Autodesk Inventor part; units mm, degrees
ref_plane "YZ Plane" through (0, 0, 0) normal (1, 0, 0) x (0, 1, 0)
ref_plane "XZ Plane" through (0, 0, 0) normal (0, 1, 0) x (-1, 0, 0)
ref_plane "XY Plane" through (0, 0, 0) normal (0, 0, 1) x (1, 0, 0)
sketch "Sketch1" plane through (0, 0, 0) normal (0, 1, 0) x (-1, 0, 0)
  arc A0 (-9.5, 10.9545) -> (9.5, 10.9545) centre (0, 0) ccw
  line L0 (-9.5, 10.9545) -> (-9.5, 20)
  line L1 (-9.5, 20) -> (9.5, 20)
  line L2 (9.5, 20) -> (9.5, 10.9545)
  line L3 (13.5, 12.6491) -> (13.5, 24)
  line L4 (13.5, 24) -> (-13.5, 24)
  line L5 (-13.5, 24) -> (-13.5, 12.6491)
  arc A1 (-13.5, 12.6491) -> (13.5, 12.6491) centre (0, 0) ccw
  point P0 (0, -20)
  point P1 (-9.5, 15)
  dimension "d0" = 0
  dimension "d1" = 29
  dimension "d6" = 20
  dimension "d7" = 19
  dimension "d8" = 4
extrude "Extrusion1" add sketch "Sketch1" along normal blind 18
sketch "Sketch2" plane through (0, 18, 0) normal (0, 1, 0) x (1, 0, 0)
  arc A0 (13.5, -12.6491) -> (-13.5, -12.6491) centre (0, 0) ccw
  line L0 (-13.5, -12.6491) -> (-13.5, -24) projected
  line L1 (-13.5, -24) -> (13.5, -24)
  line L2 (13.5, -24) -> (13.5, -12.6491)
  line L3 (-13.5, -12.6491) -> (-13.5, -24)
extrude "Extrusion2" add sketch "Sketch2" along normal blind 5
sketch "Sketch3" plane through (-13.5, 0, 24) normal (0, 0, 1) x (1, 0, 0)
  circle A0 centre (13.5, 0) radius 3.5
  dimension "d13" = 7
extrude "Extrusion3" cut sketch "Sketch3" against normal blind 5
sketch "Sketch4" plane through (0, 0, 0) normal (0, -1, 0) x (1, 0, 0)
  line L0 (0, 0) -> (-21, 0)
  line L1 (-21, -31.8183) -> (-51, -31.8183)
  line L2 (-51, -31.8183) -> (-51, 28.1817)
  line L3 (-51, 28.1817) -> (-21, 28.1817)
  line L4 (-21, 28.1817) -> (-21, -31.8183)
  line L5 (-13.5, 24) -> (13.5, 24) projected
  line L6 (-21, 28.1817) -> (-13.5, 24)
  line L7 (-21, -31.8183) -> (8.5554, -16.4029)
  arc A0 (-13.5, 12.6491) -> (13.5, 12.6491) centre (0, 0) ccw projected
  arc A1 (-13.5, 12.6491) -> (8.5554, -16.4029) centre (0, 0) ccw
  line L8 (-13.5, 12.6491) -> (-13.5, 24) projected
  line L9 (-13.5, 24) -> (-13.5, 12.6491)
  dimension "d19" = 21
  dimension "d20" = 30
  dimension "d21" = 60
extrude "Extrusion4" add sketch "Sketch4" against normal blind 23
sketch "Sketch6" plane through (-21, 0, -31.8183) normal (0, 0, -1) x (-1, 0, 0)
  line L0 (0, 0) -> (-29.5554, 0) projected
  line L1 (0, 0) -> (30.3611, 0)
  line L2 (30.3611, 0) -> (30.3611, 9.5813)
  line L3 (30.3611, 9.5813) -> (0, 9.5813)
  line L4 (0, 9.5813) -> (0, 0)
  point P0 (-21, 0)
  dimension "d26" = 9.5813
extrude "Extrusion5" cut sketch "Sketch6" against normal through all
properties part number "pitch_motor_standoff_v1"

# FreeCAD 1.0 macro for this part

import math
import FreeCAD as App
import Part
import Sketcher

V = App.Vector


def add_polygon(sketch, points):
    """Adds a closed chain of lines whose ends are joined by coincident constraints."""
    first, n = sketch.GeometryCount, len(points)
    for a, b in zip(points, points[1:] + points[:1]):
        sketch.addGeometry(Part.LineSegment(App.Vector(*a, 0), App.Vector(*b, 0)), False)
    for i in range(n):
        sketch.addConstraint(Sketcher.Constraint("Coincident", first + i, 2, first + (i + 1) % n, 1))

doc = App.newDocument("Part")
body = doc.addObject("PartDesign::Body", "Body")

sketch1 = body.newObject("Sketcher::SketchObject", "Sketch")
sketch1.AttachmentSupport = (doc.getObject("XZ_Plane"), [""])
sketch1.MapMode = "FlatFace"
sketch1.addGeometry([
    Part.ArcOfCircle(Part.Circle(V(0, 0, 0), V(0, 0, 1), 18), math.radians(137), math.radians(403)),
    Part.LineSegment(V(-14, 13, 0), V(-14, 24, 0)),
    Part.LineSegment(V(-14, 24, 0), V(14, 24, 0)),
    Part.LineSegment(V(14, 24, 0), V(14, 13, 0)),
    Part.ArcOfCircle(Part.Circle(V(0, 0, 0), V(0, 0, 1), 15), math.radians(131), math.radians(409)),
    Part.LineSegment(V(10, 11, 0), V(10, 20, 0)),
    Part.LineSegment(V(10, 20, 0), V(-10, 20, 0)),
    Part.LineSegment(V(-10, 20, 0), V(-10, 11, 0)),
], False)
sketch1.addConstraint([
    Sketcher.Constraint("Coincident", 0, 1, 1, 1),
    Sketcher.Constraint("Coincident", 1, 2, 2, 1),
    Sketcher.Constraint("Coincident", 2, 2, 3, 1),
    Sketcher.Constraint("Coincident", 3, 2, 0, 2),
    Sketcher.Constraint("Coincident", 4, 2, 5, 1),
    Sketcher.Constraint("Coincident", 5, 2, 6, 1),
    Sketcher.Constraint("Coincident", 6, 2, 7, 1),
    Sketcher.Constraint("Coincident", 7, 2, 4, 1),
    Sketcher.Constraint("Vertical", 1),
    Sketcher.Constraint("Horizontal", 2),
    Sketcher.Constraint("Vertical", 3),
    Sketcher.Constraint("Vertical", 5),
    Sketcher.Constraint("Horizontal", 6),
    Sketcher.Constraint("Vertical", 7),
    Sketcher.Constraint("Coincident", 0, 3, -1, 1),
    Sketcher.Constraint("Coincident", 4, 3, -1, 1),
    Sketcher.Constraint("Horizontal", 0, 1, 3, 2),
    Sketcher.Constraint("Horizontal", 4, 2, 7, 2),
    Sketcher.Constraint("Radius", 4, 14.5),
    Sketcher.Constraint("DistanceX", 6, 2, 6, 1, 19.0),
    Sketcher.Constraint("DistanceY", -1, 1, 5, 2, 20.0),
    Sketcher.Constraint("DistanceX", 4, 2, 3, 2, 4.0),
    Sketcher.Constraint("DistanceY", 5, 2, 2, 2, 4.0),
    Sketcher.Constraint("Radius", 0, 18.5),
])
pad1 = body.newObject("PartDesign::Pad", "Pad")
pad1.Profile = sketch1
pad1.Length = 18
pad1.Reversed = True

sketch2 = body.newObject("Sketcher::SketchObject", "Sketch001")
sketch2.AttachmentSupport = (doc.getObject("XZ_Plane"), [""])
sketch2.MapMode = "FlatFace"
sketch2.AttachmentOffset = App.Placement(V(0, 0, -18), App.Rotation())
sketch2.addGeometry([
    Part.LineSegment(V(14, 24, 0), V(14, 13, 0)),
    Part.ArcOfCircle(Part.Circle(V(0, 0, 0), V(0, 0, 1), 18), math.radians(137), math.radians(403)),
    Part.LineSegment(V(-14, 13, 0), V(-14, 24, 0)),
    Part.LineSegment(V(-14, 24, 0), V(14, 24, 0)),
], False)
sketch2.addConstraint([
    Sketcher.Constraint("Coincident", 0, 2, 1, 2),
    Sketcher.Constraint("Coincident", 1, 1, 2, 1),
    Sketcher.Constraint("Coincident", 2, 2, 3, 1),
    Sketcher.Constraint("Coincident", 3, 2, 0, 1),
    Sketcher.Constraint("Vertical", 0),
    Sketcher.Constraint("Vertical", 2),
    Sketcher.Constraint("Horizontal", 3),
    Sketcher.Constraint("Coincident", 1, 3, -1, 1),
    Sketcher.Constraint("Horizontal", 0, 2, 1, 1),
    Sketcher.Constraint("Radius", 1, 18.5),
    Sketcher.Constraint("DistanceX", 3, 1, 3, 2, 27.0),
    Sketcher.Constraint("DistanceY", -1, 1, 2, 2, 24.0),
])
pad2 = body.newObject("PartDesign::Pad", "Pad001")
pad2.Profile = sketch2
pad2.Length = 5
pad2.Reversed = True

sketch3 = body.newObject("Sketcher::SketchObject", "Sketch002")
sketch3.AttachmentSupport = (doc.getObject("XY_Plane"), [""])
sketch3.MapMode = "FlatFace"
sketch3.AttachmentOffset = App.Placement(V(0, 0, 24), App.Rotation())
sketch3.addGeometry(Part.Circle(V(0, 0, 0), V(0, 0, 1), 3.5), False)
sketch3.addConstraint([
    Sketcher.Constraint("Coincident", 0, 3, -1, 1),
    Sketcher.Constraint("Diameter", 0, 7.0),
])
pocket1 = body.newObject("PartDesign::Pocket", "Pocket")
pocket1.Profile = sketch3
pocket1.Length = 5

sketch4 = body.newObject("Sketcher::SketchObject", "Sketch003")
sketch4.AttachmentSupport = (doc.getObject("XZ_Plane"), [""])
sketch4.MapMode = "FlatFace"
sketch4.addGeometry([
    Part.ArcOfCircle(Part.Circle(V(0, 0, 0), V(0, 0, 1), 18), math.radians(137), math.radians(298)),
    Part.LineSegment(V(-14, 13, 0), V(-14, 24, 0)),
    Part.LineSegment(V(-14, 24, 0), V(-21, 28, 0)),
    Part.LineSegment(V(-21, 28, 0), V(-51, 28, 0)),
    Part.LineSegment(V(-51, 28, 0), V(-51, -32, 0)),
    Part.LineSegment(V(-51, -32, 0), V(-21, -32, 0)),
    Part.LineSegment(V(-21, -32, 0), V(9, -16, 0)),
], False)
sketch4.addConstraint([
    Sketcher.Constraint("Coincident", 0, 1, 1, 1),
    Sketcher.Constraint("Coincident", 1, 2, 2, 1),
    Sketcher.Constraint("Coincident", 2, 2, 3, 1),
    Sketcher.Constraint("Coincident", 3, 2, 4, 1),
    Sketcher.Constraint("Coincident", 4, 2, 5, 1),
    Sketcher.Constraint("Coincident", 5, 2, 6, 1),
    Sketcher.Constraint("Tangent", 6, 2, 0, 2),
    Sketcher.Constraint("Vertical", 1),
    Sketcher.Constraint("Horizontal", 3),
    Sketcher.Constraint("Vertical", 4),
    Sketcher.Constraint("Horizontal", 5),
    Sketcher.Constraint("Coincident", 0, 3, -1, 1),
    Sketcher.Constraint("Vertical", 2, 2, 5, 2),
    Sketcher.Constraint("DistanceX", 3, 2, 3, 1, 30.0),
    Sketcher.Constraint("DistanceY", 4, 2, 4, 1, 60.0),
    Sketcher.Constraint("DistanceX", 2, 2, -1, 1, 21.0),
    Sketcher.Constraint("Radius", 0, 18.5),
    Sketcher.Constraint("DistanceY", -1, 1, 1, 2, 24.0),
    Sketcher.Constraint("DistanceX", 0, 1, -1, 1, 13.5),
    Sketcher.Constraint("Distance", 2, 8.587),
])
pad3 = body.newObject("PartDesign::Pad", "Pad002")
pad3.Profile = sketch4
pad3.Length = 23
pad3.Reversed = True

sketch5 = body.newObject("Sketcher::SketchObject", "Sketch004")
sketch5.AttachmentSupport = (doc.getObject("XY_Plane"), [""])
sketch5.MapMode = "FlatFace"
sketch5.AttachmentOffset = App.Placement(V(0, 0, -31.8183), App.Rotation())
add_polygon(sketch5, [(-21, 10), (-21, 0), (-51, 0), (-51, 10)])
sketch5.addConstraint([
    Sketcher.Constraint("Vertical", 0),
    Sketcher.Constraint("Horizontal", 1),
    Sketcher.Constraint("Vertical", 2),
    Sketcher.Constraint("Horizontal", 3),
    Sketcher.Constraint("PointOnObject", 0, 2, -1),
    Sketcher.Constraint("DistanceY", 0, 2, 0, 1, 9.5813),
    Sketcher.Constraint("DistanceX", 0, 2, -1, 1, 21.0),
    Sketcher.Constraint("DistanceX", 1, 2, 1, 1, 30.361),
])
pocket2 = body.newObject("PartDesign::Pocket", "Pocket001")
pocket2.Profile = sketch5
pocket2.Type = "ThroughAll"
pocket2.Reversed = True

doc.recompute()
